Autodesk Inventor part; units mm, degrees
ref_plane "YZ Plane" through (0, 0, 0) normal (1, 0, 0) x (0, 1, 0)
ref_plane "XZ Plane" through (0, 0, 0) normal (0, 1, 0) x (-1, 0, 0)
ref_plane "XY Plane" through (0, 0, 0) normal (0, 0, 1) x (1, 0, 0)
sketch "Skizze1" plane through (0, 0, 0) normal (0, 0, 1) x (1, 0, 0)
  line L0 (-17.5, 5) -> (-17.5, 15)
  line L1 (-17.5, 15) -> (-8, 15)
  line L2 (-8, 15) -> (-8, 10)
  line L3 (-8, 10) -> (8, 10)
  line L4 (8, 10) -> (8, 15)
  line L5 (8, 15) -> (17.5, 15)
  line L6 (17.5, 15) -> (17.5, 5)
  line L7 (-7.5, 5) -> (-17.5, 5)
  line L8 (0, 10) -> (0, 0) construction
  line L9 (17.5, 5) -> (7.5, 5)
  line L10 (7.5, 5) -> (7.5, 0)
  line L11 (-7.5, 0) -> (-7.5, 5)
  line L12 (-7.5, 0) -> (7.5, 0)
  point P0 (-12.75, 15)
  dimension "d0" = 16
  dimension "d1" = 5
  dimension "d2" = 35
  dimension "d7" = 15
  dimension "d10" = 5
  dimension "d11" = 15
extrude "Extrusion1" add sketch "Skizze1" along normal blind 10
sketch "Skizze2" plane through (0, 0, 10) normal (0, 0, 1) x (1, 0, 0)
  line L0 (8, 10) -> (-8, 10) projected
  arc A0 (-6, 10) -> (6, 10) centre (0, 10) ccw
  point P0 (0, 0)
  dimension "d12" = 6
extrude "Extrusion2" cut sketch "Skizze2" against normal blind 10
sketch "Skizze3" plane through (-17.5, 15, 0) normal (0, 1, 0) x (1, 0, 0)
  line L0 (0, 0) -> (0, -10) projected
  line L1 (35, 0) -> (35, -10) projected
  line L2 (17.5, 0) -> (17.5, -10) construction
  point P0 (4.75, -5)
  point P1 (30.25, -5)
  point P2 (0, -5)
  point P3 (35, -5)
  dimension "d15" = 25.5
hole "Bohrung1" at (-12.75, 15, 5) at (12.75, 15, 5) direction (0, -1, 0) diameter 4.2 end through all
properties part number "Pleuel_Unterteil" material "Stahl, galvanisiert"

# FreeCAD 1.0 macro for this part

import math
import FreeCAD as App
import Part
import Sketcher


def add_polygon(sketch, points):
    """Adds a closed chain of lines whose ends are joined by coincident constraints."""
    first, n = sketch.GeometryCount, len(points)
    for a, b in zip(points, points[1:] + points[:1]):
        sketch.addGeometry(Part.LineSegment(App.Vector(*a, 0), App.Vector(*b, 0)), False)
    for i in range(n):
        sketch.addConstraint(Sketcher.Constraint("Coincident", first + i, 2, first + (i + 1) % n, 1))

doc = App.newDocument("Part")
params = doc.addObject("Spreadsheet::Sheet", "Params")
for row, (alias, value) in enumerate([
    ("sketch1_width", "15 mm"),
    ("sketch1_width2", "16 mm"),
    ("sketch1_height", "5 mm"),
    ("pad1_length", "10 mm"),
    ("sketch2_radius", "6 mm"),
    ("pocket1_length", "10 mm"),
    ("sketch3_diameter", "4.2 mm"),
    ("hole_diameter", "4.2 mm"),
], start=1):
    params.set(f"A{row}", alias)
    params.set(f"B{row}", "=" + value)
    params.setAlias(f"B{row}", alias)

body = doc.addObject("PartDesign::Body", "Body")

# Sketch on XY plane
sketch1 = doc.addObject("Sketcher::SketchObject", "Sketch")
body.addObject(sketch1)
sketch1.AttachmentSupport = (doc.XY_Plane, [""])
sketch1.MapMode = "FlatFace"
add_polygon(sketch1, [(-17.5, 15), (-17.5, 5), (-7.5, 5), (-7.5, 0), (7.5, 0), (7.5, 5), (17.5, 5), (17.5, 15), (8, 15), (8, 10), (-8, 10), (-8, 15)])  # lines 0-11
sketch1.addConstraint(Sketcher.Constraint("Vertical", 0))
sketch1.addConstraint(Sketcher.Constraint("Horizontal", 1))
sketch1.addConstraint(Sketcher.Constraint("Vertical", 2))
sketch1.addConstraint(Sketcher.Constraint("Horizontal", 3))
sketch1.addConstraint(Sketcher.Constraint("Vertical", 4))
sketch1.addConstraint(Sketcher.Constraint("Horizontal", 5))
sketch1.addConstraint(Sketcher.Constraint("Vertical", 6))
sketch1.addConstraint(Sketcher.Constraint("Horizontal", 7))
sketch1.addConstraint(Sketcher.Constraint("Vertical", 8))
sketch1.addConstraint(Sketcher.Constraint("Horizontal", 9))
sketch1.addConstraint(Sketcher.Constraint("Vertical", 10))
sketch1.addConstraint(Sketcher.Constraint("Horizontal", 11))
sketch1.addConstraint(Sketcher.Constraint("Symmetric", 2, 2, 3, 2, -1, 1))
sketch1.addConstraint(Sketcher.Constraint("Symmetric", 0, 2, 5, 2, -2))
sketch1.addConstraint(Sketcher.Constraint("Symmetric", 7, 2, 10, 2, -2))
sketch1.addConstraint(Sketcher.Constraint("Equal", 5, 0))
sketch1.addConstraint(Sketcher.Constraint("Equal", 4, 8))
sketch1.addConstraint(Sketcher.Constraint("DistanceX", 3, 1, 3, 2, 15.0))
sketch1.addConstraint(Sketcher.Constraint("DistanceX", 9, 2, 9, 1, 16.0))
sketch1.addConstraint(Sketcher.Constraint("DistanceY", 2, 2, 2, 1, 5.0))
sketch1.addConstraint(Sketcher.Constraint("DistanceY", -1, 1, 6, 2, 15.0))
sketch1.setExpression("Constraints[29]", "Params.sketch1_width")
sketch1.setExpression("Constraints[30]", "Params.sketch1_width2")
sketch1.setExpression("Constraints[31]", "Params.sketch1_height")
pad1 = doc.addObject("PartDesign::Pad", "Pad")
body.addObject(pad1)
pad1.Profile = sketch1
pad1.setExpression("Length", "Params.pad1_length")

# Sketch on XY plane
sketch2 = doc.addObject("Sketcher::SketchObject", "Sketch001")
body.addObject(sketch2)
sketch2.AttachmentSupport = (doc.XY_Plane, [""])
sketch2.MapMode = "FlatFace"
sketch2.AttachmentOffset = App.Placement(App.Vector(0, 0, 10), App.Rotation())
sketch2.addGeometry(Part.ArcOfCircle(Part.Circle(App.Vector(0, 10, 0), App.Vector(0, 0, 1), 6), math.radians(180), math.radians(360)), False)
sketch2.addGeometry(Part.LineSegment(App.Vector(6, 10, 0), App.Vector(-6, 10, 0)), False)
sketch2.addConstraint(Sketcher.Constraint("Coincident", 0, 1, 1, 2))
sketch2.addConstraint(Sketcher.Constraint("Coincident", 1, 1, 0, 2))
sketch2.addConstraint(Sketcher.Constraint("Horizontal", 1))
sketch2.addConstraint(Sketcher.Constraint("PointOnObject", 0, 3, -2))
sketch2.addConstraint(Sketcher.Constraint("Radius", 0, 6.0))
sketch2.addConstraint(Sketcher.Constraint("DistanceY", -1, 1, 0, 3, 10.0))
sketch2.addConstraint(Sketcher.Constraint("DistanceY", -1, 1, 0, 1, 10.0))
sketch2.setExpression("Constraints[4]", "Params.sketch2_radius")
pocket1 = doc.addObject("PartDesign::Pocket", "Pocket")
body.addObject(pocket1)
pocket1.Profile = sketch2
pocket1.setExpression("Length", "Params.pocket1_length")

# Sketch on XZ plane
sketch3 = doc.addObject("Sketcher::SketchObject", "Sketch002")
body.addObject(sketch3)
sketch3.AttachmentSupport = (doc.XZ_Plane, [""])
sketch3.MapMode = "FlatFace"
sketch3.AttachmentOffset = App.Placement(App.Vector(0, 0, -15), App.Rotation())
sketch3.addGeometry(Part.Circle(App.Vector(-12.75, 5, 0), App.Vector(0, 0, 1), 2.1), False)
sketch3.addGeometry(Part.Circle(App.Vector(12.75, 5, 0), App.Vector(0, 0, 1), 2.1), False)
sketch3.addConstraint(Sketcher.Constraint("Equal", 0, 1))
sketch3.addConstraint(Sketcher.Constraint("Symmetric", 0, 3, 1, 3, -2))
sketch3.addConstraint(Sketcher.Constraint("Diameter", 0, 4.2))
sketch3.addConstraint(Sketcher.Constraint("DistanceY", -1, 1, 0, 3, 5.0))
sketch3.addConstraint(Sketcher.Constraint("DistanceX", 0, 3, 1, 3, 25.5))
sketch3.setExpression("Constraints[2]", "Params.sketch3_diameter")
doc.recompute()
hole = doc.addObject("PartDesign::Hole", "Hole")
body.addObject(hole)
hole.Profile = sketch3
hole.ThreadType = "None"
hole.setExpression("Diameter", "Params.hole_diameter")
hole.DepthType = "ThroughAll"
hole.Reversed = True

doc.recompute()
